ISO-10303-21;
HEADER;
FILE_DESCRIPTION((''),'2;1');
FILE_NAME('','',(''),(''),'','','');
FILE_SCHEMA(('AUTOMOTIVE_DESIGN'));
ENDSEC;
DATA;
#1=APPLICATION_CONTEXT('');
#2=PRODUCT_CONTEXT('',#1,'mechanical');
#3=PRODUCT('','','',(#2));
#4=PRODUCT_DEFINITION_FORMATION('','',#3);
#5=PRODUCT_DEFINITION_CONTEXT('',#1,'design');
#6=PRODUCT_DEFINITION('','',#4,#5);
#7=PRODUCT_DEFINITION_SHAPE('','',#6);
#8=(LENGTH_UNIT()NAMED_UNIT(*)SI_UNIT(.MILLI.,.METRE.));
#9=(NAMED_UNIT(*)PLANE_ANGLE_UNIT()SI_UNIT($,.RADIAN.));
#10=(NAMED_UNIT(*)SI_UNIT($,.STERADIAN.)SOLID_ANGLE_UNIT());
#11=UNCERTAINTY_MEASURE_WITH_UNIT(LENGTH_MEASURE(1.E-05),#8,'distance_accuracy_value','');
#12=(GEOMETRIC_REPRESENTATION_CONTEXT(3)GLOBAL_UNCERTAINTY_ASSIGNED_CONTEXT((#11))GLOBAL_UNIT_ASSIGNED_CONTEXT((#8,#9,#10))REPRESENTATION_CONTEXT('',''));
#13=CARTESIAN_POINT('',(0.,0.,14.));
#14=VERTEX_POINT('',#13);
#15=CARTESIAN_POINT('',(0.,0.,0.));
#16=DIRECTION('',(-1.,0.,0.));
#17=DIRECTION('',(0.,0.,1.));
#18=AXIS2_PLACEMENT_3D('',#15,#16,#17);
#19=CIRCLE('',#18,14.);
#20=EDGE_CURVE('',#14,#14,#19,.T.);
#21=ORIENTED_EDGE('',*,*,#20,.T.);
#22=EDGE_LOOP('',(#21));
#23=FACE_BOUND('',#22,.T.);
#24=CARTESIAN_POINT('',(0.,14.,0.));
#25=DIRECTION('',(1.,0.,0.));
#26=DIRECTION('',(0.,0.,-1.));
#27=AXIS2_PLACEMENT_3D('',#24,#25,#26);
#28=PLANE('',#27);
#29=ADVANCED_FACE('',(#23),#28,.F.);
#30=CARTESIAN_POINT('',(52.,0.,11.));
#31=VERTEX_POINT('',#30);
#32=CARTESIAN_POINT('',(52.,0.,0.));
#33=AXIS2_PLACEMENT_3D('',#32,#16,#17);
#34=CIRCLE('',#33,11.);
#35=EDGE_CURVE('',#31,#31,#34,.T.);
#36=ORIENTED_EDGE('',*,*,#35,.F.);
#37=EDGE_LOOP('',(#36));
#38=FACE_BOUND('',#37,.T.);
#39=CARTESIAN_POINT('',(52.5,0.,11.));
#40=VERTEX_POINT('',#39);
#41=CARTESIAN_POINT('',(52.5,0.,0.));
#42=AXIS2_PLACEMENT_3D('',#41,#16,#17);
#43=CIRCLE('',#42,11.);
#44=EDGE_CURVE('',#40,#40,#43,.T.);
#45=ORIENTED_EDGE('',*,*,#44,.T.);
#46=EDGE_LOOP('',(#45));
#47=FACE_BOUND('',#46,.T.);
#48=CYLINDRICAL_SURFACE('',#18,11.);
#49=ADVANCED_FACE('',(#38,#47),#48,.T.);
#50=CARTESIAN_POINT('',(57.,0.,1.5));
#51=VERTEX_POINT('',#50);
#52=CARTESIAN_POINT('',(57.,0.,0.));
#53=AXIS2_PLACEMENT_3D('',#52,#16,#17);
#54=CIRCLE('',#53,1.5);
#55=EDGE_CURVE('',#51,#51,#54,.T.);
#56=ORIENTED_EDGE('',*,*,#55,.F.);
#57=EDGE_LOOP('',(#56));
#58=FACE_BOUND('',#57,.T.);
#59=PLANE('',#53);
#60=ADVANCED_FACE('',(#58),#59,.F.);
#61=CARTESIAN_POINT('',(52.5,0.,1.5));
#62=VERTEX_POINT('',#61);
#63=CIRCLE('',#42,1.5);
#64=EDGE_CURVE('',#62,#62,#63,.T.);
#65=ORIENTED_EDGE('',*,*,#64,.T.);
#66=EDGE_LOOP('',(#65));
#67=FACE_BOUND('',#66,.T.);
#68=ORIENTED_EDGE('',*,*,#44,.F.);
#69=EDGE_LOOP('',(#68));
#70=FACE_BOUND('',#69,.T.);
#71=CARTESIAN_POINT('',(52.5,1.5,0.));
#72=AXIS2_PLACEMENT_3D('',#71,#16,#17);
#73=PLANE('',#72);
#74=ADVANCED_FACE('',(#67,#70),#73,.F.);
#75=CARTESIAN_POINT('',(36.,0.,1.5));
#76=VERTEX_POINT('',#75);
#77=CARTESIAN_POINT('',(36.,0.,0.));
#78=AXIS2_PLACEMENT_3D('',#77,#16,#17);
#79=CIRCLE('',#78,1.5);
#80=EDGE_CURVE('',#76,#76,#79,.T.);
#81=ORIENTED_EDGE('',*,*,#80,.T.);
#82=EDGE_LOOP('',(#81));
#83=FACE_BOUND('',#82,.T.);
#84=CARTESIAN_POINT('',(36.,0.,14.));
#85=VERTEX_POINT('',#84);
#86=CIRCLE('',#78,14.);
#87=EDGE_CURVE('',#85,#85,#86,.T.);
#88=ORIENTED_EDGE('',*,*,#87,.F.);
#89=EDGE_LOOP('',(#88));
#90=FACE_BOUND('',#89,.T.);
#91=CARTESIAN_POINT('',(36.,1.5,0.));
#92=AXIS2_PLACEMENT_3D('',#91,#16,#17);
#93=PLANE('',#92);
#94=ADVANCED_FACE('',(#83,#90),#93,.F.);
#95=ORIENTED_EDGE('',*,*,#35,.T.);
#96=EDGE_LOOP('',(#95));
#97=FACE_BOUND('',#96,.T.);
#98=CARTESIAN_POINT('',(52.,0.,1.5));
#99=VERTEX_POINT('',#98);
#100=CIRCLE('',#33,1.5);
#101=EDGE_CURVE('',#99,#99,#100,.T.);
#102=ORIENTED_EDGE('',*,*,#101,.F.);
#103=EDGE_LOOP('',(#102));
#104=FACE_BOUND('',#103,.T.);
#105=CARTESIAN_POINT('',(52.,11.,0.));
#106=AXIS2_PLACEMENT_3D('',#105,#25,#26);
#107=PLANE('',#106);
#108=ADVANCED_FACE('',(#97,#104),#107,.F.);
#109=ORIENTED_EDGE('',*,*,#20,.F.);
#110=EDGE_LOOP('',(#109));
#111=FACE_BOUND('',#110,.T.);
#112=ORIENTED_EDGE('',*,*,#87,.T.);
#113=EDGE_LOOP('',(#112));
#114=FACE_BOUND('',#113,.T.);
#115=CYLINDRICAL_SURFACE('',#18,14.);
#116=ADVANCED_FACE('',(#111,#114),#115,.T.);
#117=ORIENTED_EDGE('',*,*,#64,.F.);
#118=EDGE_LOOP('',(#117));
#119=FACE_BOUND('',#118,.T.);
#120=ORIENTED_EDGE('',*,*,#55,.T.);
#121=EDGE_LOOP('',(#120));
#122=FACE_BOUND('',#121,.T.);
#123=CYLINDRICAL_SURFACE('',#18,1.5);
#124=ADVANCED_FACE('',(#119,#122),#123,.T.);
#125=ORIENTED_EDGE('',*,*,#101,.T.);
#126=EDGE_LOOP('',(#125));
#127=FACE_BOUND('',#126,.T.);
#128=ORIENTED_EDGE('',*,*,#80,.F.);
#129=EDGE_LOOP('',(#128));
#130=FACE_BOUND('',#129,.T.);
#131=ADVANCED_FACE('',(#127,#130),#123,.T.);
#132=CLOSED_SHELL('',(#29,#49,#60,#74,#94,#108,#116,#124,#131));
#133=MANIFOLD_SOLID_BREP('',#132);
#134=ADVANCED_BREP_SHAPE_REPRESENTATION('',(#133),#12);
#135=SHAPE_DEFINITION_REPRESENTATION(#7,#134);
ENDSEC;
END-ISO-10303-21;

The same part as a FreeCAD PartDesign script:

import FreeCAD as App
import Part
import Sketcher
from FreeCAD import Vector

doc = App.newDocument("Part")
body = doc.addObject("PartDesign::Body", "Body")

sketch1 = body.newObject("Sketcher::SketchObject", "Sketch")
sketch1.AttachmentSupport = (doc.getObject("XY_Plane"), [""])
sketch1.MapMode = "FlatFace"
sketch1.addGeometry([
    Part.LineSegment(Vector(0, 0, 0), Vector(57, 0, 0)),
    Part.LineSegment(Vector(57, 0, 0), Vector(57, 1.5, 0)),
    Part.LineSegment(Vector(57, 1.5, 0), Vector(52.5, 1.5, 0)),
    Part.LineSegment(Vector(52.5, 1.5, 0), Vector(52.5, 11, 0)),
    Part.LineSegment(Vector(52.5, 11, 0), Vector(52, 11, 0)),
    Part.LineSegment(Vector(52, 11, 0), Vector(52, 1.5, 0)),
    Part.LineSegment(Vector(52, 1.5, 0), Vector(36, 1.5, 0)),
    Part.LineSegment(Vector(36, 1.5, 0), Vector(36, 14, 0)),
    Part.LineSegment(Vector(36, 14, 0), Vector(0, 14, 0)),
    Part.LineSegment(Vector(0, 14, 0), Vector(0, 0, 0)),
], False)
sketch1.addConstraint([
    Sketcher.Constraint("Coincident", 0, 2, 1, 1),
    Sketcher.Constraint("Coincident", 1, 2, 2, 1),
    Sketcher.Constraint("Coincident", 2, 2, 3, 1),
    Sketcher.Constraint("Coincident", 3, 2, 4, 1),
    Sketcher.Constraint("Coincident", 4, 2, 5, 1),
    Sketcher.Constraint("Coincident", 5, 2, 6, 1),
    Sketcher.Constraint("Coincident", 6, 2, 7, 1),
    Sketcher.Constraint("Coincident", 7, 2, 8, 1),
    Sketcher.Constraint("Coincident", 8, 2, 9, 1),
    Sketcher.Constraint("Coincident", 9, 2, 0, 1),
    Sketcher.Constraint("Horizontal", 0),
    Sketcher.Constraint("Vertical", 1),
    Sketcher.Constraint("Horizontal", 2),
    Sketcher.Constraint("Vertical", 3),
    Sketcher.Constraint("Horizontal", 4),
    Sketcher.Constraint("Vertical", 5),
    Sketcher.Constraint("Horizontal", 6),
    Sketcher.Constraint("Vertical", 7),
    Sketcher.Constraint("Horizontal", 8),
    Sketcher.Constraint("Vertical", 9),
    Sketcher.Constraint("Coincident", 9, 2, -1, 1),
    Sketcher.Constraint("Horizontal", 2, 2, 5, 2),
    Sketcher.Constraint("DistanceX", 0, 1, 0, 2, 57.0),
    Sketcher.Constraint("DistanceX", 6, 2, 6, 1, 16.0),
    Sketcher.Constraint("DistanceX", 8, 2, 8, 1, 36.0),
    Sketcher.Constraint("DistanceY", 9, 2, 9, 1, 14.0),
    Sketcher.Constraint("DistanceX", 2, 2, 2, 1, 4.5),
    Sketcher.Constraint("DistanceY", 1, 1, 1, 2, 1.5),
    Sketcher.Constraint("DistanceY", 3, 1, 3, 2, 9.5),
])
revolution = body.newObject("PartDesign::Revolution", "Revolution")
revolution.Profile = sketch1
revolution.ReferenceAxis = (sketch1, ["H_Axis"])
revolution.Angle = 360

doc.recompute()
